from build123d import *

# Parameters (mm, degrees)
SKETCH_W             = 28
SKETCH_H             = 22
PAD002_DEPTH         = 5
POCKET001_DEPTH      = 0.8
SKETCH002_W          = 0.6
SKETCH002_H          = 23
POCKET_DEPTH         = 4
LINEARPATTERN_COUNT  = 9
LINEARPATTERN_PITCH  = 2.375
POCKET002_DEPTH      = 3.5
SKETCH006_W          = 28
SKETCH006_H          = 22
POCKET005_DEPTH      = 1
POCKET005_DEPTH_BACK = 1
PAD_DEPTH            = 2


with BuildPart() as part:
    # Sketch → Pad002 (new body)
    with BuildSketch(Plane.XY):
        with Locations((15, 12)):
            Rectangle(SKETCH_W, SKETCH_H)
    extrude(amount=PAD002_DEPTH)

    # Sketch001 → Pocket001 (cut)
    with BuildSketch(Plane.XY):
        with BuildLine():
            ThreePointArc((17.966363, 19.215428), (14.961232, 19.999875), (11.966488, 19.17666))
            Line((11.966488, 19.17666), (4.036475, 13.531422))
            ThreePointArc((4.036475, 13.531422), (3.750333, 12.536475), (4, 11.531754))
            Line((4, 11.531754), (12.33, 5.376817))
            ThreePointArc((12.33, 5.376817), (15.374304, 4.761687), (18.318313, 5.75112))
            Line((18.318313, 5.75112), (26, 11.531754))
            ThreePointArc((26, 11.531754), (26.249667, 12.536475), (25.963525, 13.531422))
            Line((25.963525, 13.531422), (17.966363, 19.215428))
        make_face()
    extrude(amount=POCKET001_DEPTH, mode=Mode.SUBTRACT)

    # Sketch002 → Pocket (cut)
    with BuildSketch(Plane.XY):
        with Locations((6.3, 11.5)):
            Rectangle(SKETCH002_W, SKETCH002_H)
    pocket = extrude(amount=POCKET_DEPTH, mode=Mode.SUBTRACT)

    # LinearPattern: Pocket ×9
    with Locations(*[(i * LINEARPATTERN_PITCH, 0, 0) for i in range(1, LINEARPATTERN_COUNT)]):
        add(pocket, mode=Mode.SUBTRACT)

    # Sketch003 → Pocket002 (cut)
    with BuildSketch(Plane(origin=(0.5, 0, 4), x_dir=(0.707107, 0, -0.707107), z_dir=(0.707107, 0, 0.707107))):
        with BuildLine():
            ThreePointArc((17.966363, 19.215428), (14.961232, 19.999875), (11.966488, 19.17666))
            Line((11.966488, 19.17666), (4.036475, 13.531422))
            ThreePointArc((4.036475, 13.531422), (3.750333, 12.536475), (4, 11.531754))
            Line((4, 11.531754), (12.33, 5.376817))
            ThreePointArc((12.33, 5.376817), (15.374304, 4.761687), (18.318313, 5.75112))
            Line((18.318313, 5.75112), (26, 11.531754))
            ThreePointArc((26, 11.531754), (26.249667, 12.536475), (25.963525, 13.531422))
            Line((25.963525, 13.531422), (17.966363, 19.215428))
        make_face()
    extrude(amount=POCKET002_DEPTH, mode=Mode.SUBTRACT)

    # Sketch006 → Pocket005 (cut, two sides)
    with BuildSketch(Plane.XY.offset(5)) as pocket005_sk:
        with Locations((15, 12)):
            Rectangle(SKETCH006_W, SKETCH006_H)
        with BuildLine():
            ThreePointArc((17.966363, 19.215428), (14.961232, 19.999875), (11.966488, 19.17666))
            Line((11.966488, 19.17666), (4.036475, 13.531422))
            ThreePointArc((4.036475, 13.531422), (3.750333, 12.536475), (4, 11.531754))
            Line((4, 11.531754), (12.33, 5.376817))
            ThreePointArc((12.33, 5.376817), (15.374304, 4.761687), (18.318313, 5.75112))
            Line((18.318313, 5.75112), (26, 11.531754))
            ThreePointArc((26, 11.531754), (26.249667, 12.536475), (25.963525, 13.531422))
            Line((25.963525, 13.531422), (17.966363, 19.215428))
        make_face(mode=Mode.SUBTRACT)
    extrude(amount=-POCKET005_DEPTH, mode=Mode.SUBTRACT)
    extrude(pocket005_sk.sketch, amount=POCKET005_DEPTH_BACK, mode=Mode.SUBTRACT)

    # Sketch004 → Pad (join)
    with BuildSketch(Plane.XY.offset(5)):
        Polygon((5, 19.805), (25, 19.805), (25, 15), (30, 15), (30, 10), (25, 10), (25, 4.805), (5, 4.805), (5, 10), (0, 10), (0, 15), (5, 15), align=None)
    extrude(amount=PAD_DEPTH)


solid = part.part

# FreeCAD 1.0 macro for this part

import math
import FreeCAD as App
import Part
import Sketcher

doc = App.newDocument("Part")
body = doc.addObject("PartDesign::Body", "Body")

# Sketch on XY plane
sketch1 = body.newObject("Sketcher::SketchObject", "Sketch")
sketch1.AttachmentSupport = (doc.getObject("XY_Plane"), [""])
sketch1.MapMode = "FlatFace"
sketch1.addGeometry([
    Part.LineSegment(App.Vector(1, 23, 0), App.Vector(1, 1, 0)),
    Part.LineSegment(App.Vector(1, 1, 0), App.Vector(29, 1, 0)),
    Part.LineSegment(App.Vector(29, 1, 0), App.Vector(29, 23, 0)),
    Part.LineSegment(App.Vector(29, 23, 0), App.Vector(1, 23, 0)),
], False)
sketch1.addConstraint([
    Sketcher.Constraint("Coincident", 0, 2, 1, 1),
    Sketcher.Constraint("Coincident", 1, 2, 2, 1),
    Sketcher.Constraint("Coincident", 2, 2, 3, 1),
    Sketcher.Constraint("Coincident", 3, 2, 0, 1),
    Sketcher.Constraint("Vertical", 0),
    Sketcher.Constraint("Horizontal", 1),
    Sketcher.Constraint("Vertical", 2),
    Sketcher.Constraint("Horizontal", 3),
    Sketcher.Constraint("DistanceX", 1, 1, 1, 2, 28.0),
    Sketcher.Constraint("DistanceY", 0, 2, 0, 1, 22.0),
    Sketcher.Constraint("DistanceX", -1, 1, 0, 2, 1.0),
    Sketcher.Constraint("DistanceY", -1, 1, 0, 2, 1.0),
])
pad1 = body.newObject("PartDesign::Pad", "Pad")
pad1.Profile = sketch1
pad1.Length = 5

# Sketch on XY plane
sketch2 = body.newObject("Sketcher::SketchObject", "Sketch001")
sketch2.AttachmentSupport = (doc.getObject("XY_Plane"), [""])
sketch2.MapMode = "FlatFace"
sketch2.addGeometry([
    Part.ArcOfCircle(Part.Circle(App.Vector(15, 14.000001, 0), App.Vector(0, 0, 1), 5.999999), math.radians(60.370204), math.radians(120.370216)),  # 0
    Part.LineSegment(App.Vector(11.966488, 19.17666, 0), App.Vector(4.036475, 13.531422, 0)),  # 1
    Part.ArcOfCircle(Part.Circle(App.Vector(5.750002, 12.5, 0), App.Vector(0, 0, 1), 2.000002), math.radians(148.955033), math.radians(208.954988)),  # 2
    Part.LineSegment(App.Vector(4, 11.531754, 0), App.Vector(12.33, 5.376817, 0)),  # 3
    Part.ArcOfCircle(Part.Circle(App.Vector(15, 10.750002, 0), App.Vector(0, 0, 1), 6.000001), math.radians(-116.423337), math.radians(-56.423357)),  # 4
    Part.LineSegment(App.Vector(18.318313, 5.75112, 0), App.Vector(26, 11.531754, 0)),  # 5
    Part.ArcOfCircle(Part.Circle(App.Vector(24.249998, 12.5, 0), App.Vector(0, 0, 1), 2.000002), math.radians(-28.954988), math.radians(31.044967)),  # 6
    Part.LineSegment(App.Vector(25.963525, 13.531422, 0), App.Vector(17.966363, 19.215428, 0)),  # 7
], False)
sketch2.addConstraint([
    Sketcher.Constraint("Coincident", 0, 2, 1, 1),
    Sketcher.Constraint("Coincident", 1, 2, 2, 1),
    Sketcher.Constraint("Coincident", 2, 2, 3, 1),
    Sketcher.Constraint("Coincident", 3, 2, 4, 1),
    Sketcher.Constraint("Coincident", 4, 2, 5, 1),
    Sketcher.Constraint("Coincident", 5, 2, 6, 1),
    Sketcher.Constraint("Coincident", 6, 2, 7, 1),
    Sketcher.Constraint("Coincident", 7, 2, 0, 1),
    Sketcher.Constraint("Equal", 2, 6),
    Sketcher.Constraint("Horizontal", 2, 3, 6, 3),
    Sketcher.Constraint("Horizontal", 2, 2, 5, 2),
    Sketcher.Constraint("Horizontal", 1, 2, 6, 2),
    Sketcher.Constraint("Vertical", 0, 3, 4, 3),
    Sketcher.Constraint("Radius", 0, 5.999999),
    Sketcher.Constraint("Radius", 2, 2.000002),
    Sketcher.Constraint("Radius", 4, 6.000001),
    Sketcher.Constraint("DistanceX", -1, 1, 0, 3, 15.0),
    Sketcher.Constraint("DistanceY", -1, 1, 0, 3, 14.000001),
    Sketcher.Constraint("DistanceX", -1, 1, 2, 2, 4.0),
    Sketcher.Constraint("DistanceX", -1, 1, 5, 2, 26.0),
    Sketcher.Constraint("DistanceY", -1, 1, 2, 3, 12.5),
    Sketcher.Constraint("DistanceY", -1, 1, 4, 3, 10.750002),
    Sketcher.Constraint("DistanceX", -1, 1, 3, 2, 12.33),
    Sketcher.Constraint("DistanceX", 2, 3, 4, 3, 9.249998),
    Sketcher.Constraint("DistanceY", 4, 2, 6, 2, 7.780302),
    Sketcher.Constraint("DistanceX", -1, 1, 0, 2, 11.966488),
    Sketcher.Constraint("DistanceY", -1, 1, 1, 2, 13.531422),
    Sketcher.Constraint("DistanceY", 0, 2, 7, 2, 0.038768),
])
pocket1 = body.newObject("PartDesign::Pocket", "Pocket")
pocket1.Profile = sketch2
pocket1.Length = 0.8
pocket1.Reversed = True

# Sketch on XY plane
sketch3 = body.newObject("Sketcher::SketchObject", "Sketch002")
sketch3.AttachmentSupport = (doc.getObject("XY_Plane"), [""])
sketch3.MapMode = "FlatFace"
sketch3.addGeometry([
    Part.LineSegment(App.Vector(6, 23, 0), App.Vector(6, 0, 0)),
    Part.LineSegment(App.Vector(6, 0, 0), App.Vector(6.6, 0, 0)),
    Part.LineSegment(App.Vector(6.6, 0, 0), App.Vector(6.6, 23, 0)),
    Part.LineSegment(App.Vector(6.6, 23, 0), App.Vector(6, 23, 0)),
], False)
sketch3.addConstraint([
    Sketcher.Constraint("Coincident", 0, 2, 1, 1),
    Sketcher.Constraint("Coincident", 1, 2, 2, 1),
    Sketcher.Constraint("Coincident", 2, 2, 3, 1),
    Sketcher.Constraint("Coincident", 3, 2, 0, 1),
    Sketcher.Constraint("Vertical", 0),
    Sketcher.Constraint("Horizontal", 1),
    Sketcher.Constraint("Vertical", 2),
    Sketcher.Constraint("Horizontal", 3),
    Sketcher.Constraint("PointOnObject", 0, 2, -1),
    Sketcher.Constraint("DistanceY", 0, 2, 0, 1, 23.0),
    Sketcher.Constraint("DistanceX", 1, 1, 1, 2, 0.6),
    Sketcher.Constraint("DistanceX", -1, 1, 0, 2, 6.0),
])
pocket2 = body.newObject("PartDesign::Pocket", "Pocket001")
pocket2.Profile = sketch3
pocket2.Length = 4
pocket2.Reversed = True
doc.recompute()

linearpattern = body.newObject("PartDesign::LinearPattern", "LinearPattern")
linearpattern.Originals = [pocket2]
linearpattern.Direction = (doc.getObject("X_Axis"), [""])
linearpattern.Mode = "offset"
linearpattern.Offset = 2.375
linearpattern.Occurrences = 9
body.Tip = linearpattern

# Sketch on an angled plane
sketch4 = body.newObject("Sketcher::SketchObject", "Sketch003")
sketch4.Placement = App.Placement(App.Vector(0.5, 0, 4), App.Rotation(App.Vector(0.707106781, 0, -0.707106781), App.Vector(0, 0.999999999, 0), App.Vector(0.707106781, 0, 0.707106781), "ZXY"))
sketch4.addGeometry([
    Part.ArcOfCircle(Part.Circle(App.Vector(15, 14.000001, 0), App.Vector(0, 0, 1), 5.999999), math.radians(60.370204), math.radians(120.370216)),  # 0
    Part.LineSegment(App.Vector(11.966488, 19.17666, 0), App.Vector(4.036475, 13.531422, 0)),  # 1
    Part.ArcOfCircle(Part.Circle(App.Vector(5.750002, 12.5, 0), App.Vector(0, 0, 1), 2.000002), math.radians(148.955033), math.radians(208.954988)),  # 2
    Part.LineSegment(App.Vector(4, 11.531754, 0), App.Vector(12.33, 5.376817, 0)),  # 3
    Part.ArcOfCircle(Part.Circle(App.Vector(15, 10.750002, 0), App.Vector(0, 0, 1), 6.000001), math.radians(-116.423337), math.radians(-56.423357)),  # 4
    Part.LineSegment(App.Vector(18.318313, 5.75112, 0), App.Vector(26, 11.531754, 0)),  # 5
    Part.ArcOfCircle(Part.Circle(App.Vector(24.249998, 12.5, 0), App.Vector(0, 0, 1), 2.000002), math.radians(-28.954988), math.radians(31.044967)),  # 6
    Part.LineSegment(App.Vector(25.963525, 13.531422, 0), App.Vector(17.966363, 19.215428, 0)),  # 7
], False)
sketch4.addConstraint([
    Sketcher.Constraint("Coincident", 0, 2, 1, 1),
    Sketcher.Constraint("Coincident", 1, 2, 2, 1),
    Sketcher.Constraint("Coincident", 2, 2, 3, 1),
    Sketcher.Constraint("Coincident", 3, 2, 4, 1),
    Sketcher.Constraint("Coincident", 4, 2, 5, 1),
    Sketcher.Constraint("Coincident", 5, 2, 6, 1),
    Sketcher.Constraint("Coincident", 6, 2, 7, 1),
    Sketcher.Constraint("Coincident", 7, 2, 0, 1),
    Sketcher.Constraint("Equal", 2, 6),
    Sketcher.Constraint("Horizontal", 2, 3, 6, 3),
    Sketcher.Constraint("Horizontal", 2, 2, 5, 2),
    Sketcher.Constraint("Horizontal", 1, 2, 6, 2),
    Sketcher.Constraint("Vertical", 0, 3, 4, 3),
    Sketcher.Constraint("Radius", 0, 5.999999),
    Sketcher.Constraint("Radius", 2, 2.000002),
    Sketcher.Constraint("Radius", 4, 6.000001),
    Sketcher.Constraint("DistanceX", -1, 1, 0, 3, 15.0),
    Sketcher.Constraint("DistanceY", -1, 1, 0, 3, 14.000001),
    Sketcher.Constraint("DistanceX", -1, 1, 2, 2, 4.0),
    Sketcher.Constraint("DistanceX", -1, 1, 5, 2, 26.0),
    Sketcher.Constraint("DistanceY", -1, 1, 2, 3, 12.5),
    Sketcher.Constraint("DistanceY", -1, 1, 4, 3, 10.750002),
    Sketcher.Constraint("DistanceX", -1, 1, 3, 2, 12.33),
    Sketcher.Constraint("DistanceX", 2, 3, 4, 3, 9.249998),
    Sketcher.Constraint("DistanceY", 4, 2, 6, 2, 7.780302),
    Sketcher.Constraint("DistanceY", -1, 1, 0, 2, 19.17666),
    Sketcher.Constraint("DistanceY", -1, 1, 1, 2, 13.531422),
    Sketcher.Constraint("DistanceY", 6, 3, 7, 2, 6.715428),
])
pocket3 = body.newObject("PartDesign::Pocket", "Pocket002")
pocket3.Profile = sketch4
pocket3.Length = 3.5
pocket3.Reversed = True

# Sketch on XY plane
sketch5 = body.newObject("Sketcher::SketchObject", "Sketch004")
sketch5.AttachmentSupport = (doc.getObject("XY_Plane"), [""])
sketch5.MapMode = "FlatFace"
sketch5.AttachmentOffset = App.Placement(App.Vector(0, 0, 5), App.Rotation())
sketch5.addGeometry([
    Part.LineSegment(App.Vector(1, 23, 0), App.Vector(1, 1, 0)),  # 0
    Part.LineSegment(App.Vector(1, 1, 0), App.Vector(29, 1, 0)),  # 1
    Part.LineSegment(App.Vector(29, 1, 0), App.Vector(29, 23, 0)),  # 2
    Part.LineSegment(App.Vector(29, 23, 0), App.Vector(1, 23, 0)),  # 3
    Part.ArcOfCircle(Part.Circle(App.Vector(15, 14.000001, 0), App.Vector(0, 0, 1), 5.999999), math.radians(60.370204), math.radians(120.370216)),  # 4
    Part.LineSegment(App.Vector(17.966363, 19.215428, 0), App.Vector(25.963525, 13.531422, 0)),  # 5
    Part.ArcOfCircle(Part.Circle(App.Vector(24.249998, 12.5, 0), App.Vector(0, 0, 1), 2.000002), math.radians(-28.954988), math.radians(31.044967)),  # 6
    Part.LineSegment(App.Vector(26, 11.531754, 0), App.Vector(18.318313, 5.75112, 0)),  # 7
    Part.ArcOfCircle(Part.Circle(App.Vector(15, 10.750002, 0), App.Vector(0, 0, 1), 6.000001), math.radians(-116.423337), math.radians(-56.423357)),  # 8
    Part.LineSegment(App.Vector(12.33, 5.376817, 0), App.Vector(4, 11.531754, 0)),  # 9
    Part.ArcOfCircle(Part.Circle(App.Vector(5.750002, 12.5, 0), App.Vector(0, 0, 1), 2.000002), math.radians(148.955033), math.radians(208.954988)),  # 10
    Part.LineSegment(App.Vector(4.036475, 13.531422, 0), App.Vector(11.966488, 19.17666, 0)),  # 11
], False)
sketch5.addConstraint([
    Sketcher.Constraint("Coincident", 0, 2, 1, 1),
    Sketcher.Constraint("Coincident", 1, 2, 2, 1),
    Sketcher.Constraint("Coincident", 2, 2, 3, 1),
    Sketcher.Constraint("Coincident", 3, 2, 0, 1),
    Sketcher.Constraint("Coincident", 4, 1, 5, 1),
    Sketcher.Constraint("Coincident", 5, 2, 6, 2),
    Sketcher.Constraint("Coincident", 6, 1, 7, 1),
    Sketcher.Constraint("Coincident", 7, 2, 8, 2),
    Sketcher.Constraint("Coincident", 8, 1, 9, 1),
    Sketcher.Constraint("Coincident", 9, 2, 10, 2),
    Sketcher.Constraint("Coincident", 10, 1, 11, 1),
    Sketcher.Constraint("Coincident", 11, 2, 4, 2),
    Sketcher.Constraint("Vertical", 0),
    Sketcher.Constraint("Horizontal", 1),
    Sketcher.Constraint("Vertical", 2),
    Sketcher.Constraint("Horizontal", 3),
    Sketcher.Constraint("Equal", 6, 10),
    Sketcher.Constraint("Horizontal", 6, 3, 10, 3),
    Sketcher.Constraint("Horizontal", 6, 1, 9, 2),
    Sketcher.Constraint("Horizontal", 5, 2, 10, 1),
    Sketcher.Constraint("Vertical", 4, 3, 8, 3),
    Sketcher.Constraint("Radius", 4, 5.999999),
    Sketcher.Constraint("Radius", 6, 2.000002),
    Sketcher.Constraint("Radius", 8, 6.000001),
    Sketcher.Constraint("DistanceX", 1, 1, 1, 2, 28.0),
    Sketcher.Constraint("DistanceY", 0, 2, 0, 1, 22.0),
    Sketcher.Constraint("DistanceX", -1, 1, 4, 3, 15.0),
    Sketcher.Constraint("DistanceY", -1, 1, 4, 3, 14.000001),
    Sketcher.Constraint("DistanceX", -1, 1, 0, 2, 1.0),
    Sketcher.Constraint("DistanceY", -1, 1, 0, 2, 1.0),
    Sketcher.Constraint("DistanceX", -1, 1, 6, 1, 26.0),
    Sketcher.Constraint("DistanceX", -1, 1, 9, 2, 4.0),
    Sketcher.Constraint("DistanceY", -1, 1, 6, 3, 12.5),
    Sketcher.Constraint("DistanceY", -1, 1, 8, 3, 10.750002),
    Sketcher.Constraint("DistanceX", -1, 1, 8, 1, 12.33),
    Sketcher.Constraint("DistanceX", 4, 3, 6, 3, 9.249998),
    Sketcher.Constraint("DistanceY", 7, 2, 5, 2, 7.780302),
    Sketcher.Constraint("DistanceY", -1, 1, 4, 1, 19.215428),
    Sketcher.Constraint("DistanceY", -1, 1, 5, 2, 13.531422),
    Sketcher.Constraint("DistanceY", -1, 1, 11, 2, 19.17666),
])
pocket4 = body.newObject("PartDesign::Pocket", "Pocket003")
pocket4.Profile = sketch5
pocket4.Type = "TwoLengths"
pocket4.Length = 1
pocket4.Length2 = 1

# Sketch on XY plane
sketch6 = body.newObject("Sketcher::SketchObject", "Sketch005")
sketch6.AttachmentSupport = (doc.getObject("XY_Plane"), [""])
sketch6.MapMode = "FlatFace"
sketch6.AttachmentOffset = App.Placement(App.Vector(0, 0, 5), App.Rotation())
sketch6.addGeometry([
    Part.LineSegment(App.Vector(25, 19.805, 0), App.Vector(5, 19.805, 0)),  # 0
    Part.LineSegment(App.Vector(5, 19.805, 0), App.Vector(5, 15, 0)),  # 1
    Part.LineSegment(App.Vector(5, 15, 0), App.Vector(0, 15, 0)),  # 2
    Part.LineSegment(App.Vector(0, 15, 0), App.Vector(0, 10, 0)),  # 3
    Part.LineSegment(App.Vector(0, 10, 0), App.Vector(5, 10, 0)),  # 4
    Part.LineSegment(App.Vector(5, 10, 0), App.Vector(5, 4.805, 0)),  # 5
    Part.LineSegment(App.Vector(5, 4.805, 0), App.Vector(25, 4.805, 0)),  # 6
    Part.LineSegment(App.Vector(25, 4.805, 0), App.Vector(25, 10, 0)),  # 7
    Part.LineSegment(App.Vector(25, 10, 0), App.Vector(30, 10, 0)),  # 8
    Part.LineSegment(App.Vector(30, 10, 0), App.Vector(30, 15, 0)),  # 9
    Part.LineSegment(App.Vector(30, 15, 0), App.Vector(25, 15, 0)),  # 10
    Part.LineSegment(App.Vector(25, 15, 0), App.Vector(25, 19.805, 0)),  # 11
], False)
sketch6.addConstraint([
    Sketcher.Constraint("Coincident", 0, 2, 1, 1),
    Sketcher.Constraint("Coincident", 1, 2, 2, 1),
    Sketcher.Constraint("Coincident", 2, 2, 3, 1),
    Sketcher.Constraint("Coincident", 3, 2, 4, 1),
    Sketcher.Constraint("Coincident", 4, 2, 5, 1),
    Sketcher.Constraint("Coincident", 5, 2, 6, 1),
    Sketcher.Constraint("Coincident", 6, 2, 7, 1),
    Sketcher.Constraint("Coincident", 7, 2, 8, 1),
    Sketcher.Constraint("Coincident", 8, 2, 9, 1),
    Sketcher.Constraint("Coincident", 9, 2, 10, 1),
    Sketcher.Constraint("Coincident", 10, 2, 11, 1),
    Sketcher.Constraint("Coincident", 11, 2, 0, 1),
    Sketcher.Constraint("Horizontal", 0),
    Sketcher.Constraint("Vertical", 1),
    Sketcher.Constraint("Horizontal", 2),
    Sketcher.Constraint("Vertical", 3),
    Sketcher.Constraint("Horizontal", 4),
    Sketcher.Constraint("Vertical", 5),
    Sketcher.Constraint("Horizontal", 6),
    Sketcher.Constraint("Vertical", 7),
    Sketcher.Constraint("Horizontal", 8),
    Sketcher.Constraint("Vertical", 9),
    Sketcher.Constraint("Horizontal", 10),
    Sketcher.Constraint("Vertical", 11),
    Sketcher.Constraint("PointOnObject", 2, 2, -2),
    Sketcher.Constraint("Horizontal", 4, 2, 7, 2),
    Sketcher.Constraint("Horizontal", 2, 2, 9, 2),
    Sketcher.Constraint("Vertical", 1, 2, 4, 2),
    Sketcher.Constraint("Vertical", 7, 2, 10, 2),
    Sketcher.Constraint("Equal", 4, 8),
    Sketcher.Constraint("Equal", 10, 3),
    Sketcher.Constraint("DistanceX", 0, 2, 0, 1, 20.0),
    Sketcher.Constraint("DistanceX", 2, 2, 2, 1, 5.0),
    Sketcher.Constraint("DistanceY", -1, 1, 1, 2, 15.0),
    Sketcher.Constraint("DistanceY", 5, 2, 0, 2, 15.0),
    Sketcher.Constraint("DistanceY", 1, 2, 1, 1, 4.805),
])
pad2 = body.newObject("PartDesign::Pad", "Pad001")
pad2.Profile = sketch6
pad2.Length = 2

doc.recompute()
